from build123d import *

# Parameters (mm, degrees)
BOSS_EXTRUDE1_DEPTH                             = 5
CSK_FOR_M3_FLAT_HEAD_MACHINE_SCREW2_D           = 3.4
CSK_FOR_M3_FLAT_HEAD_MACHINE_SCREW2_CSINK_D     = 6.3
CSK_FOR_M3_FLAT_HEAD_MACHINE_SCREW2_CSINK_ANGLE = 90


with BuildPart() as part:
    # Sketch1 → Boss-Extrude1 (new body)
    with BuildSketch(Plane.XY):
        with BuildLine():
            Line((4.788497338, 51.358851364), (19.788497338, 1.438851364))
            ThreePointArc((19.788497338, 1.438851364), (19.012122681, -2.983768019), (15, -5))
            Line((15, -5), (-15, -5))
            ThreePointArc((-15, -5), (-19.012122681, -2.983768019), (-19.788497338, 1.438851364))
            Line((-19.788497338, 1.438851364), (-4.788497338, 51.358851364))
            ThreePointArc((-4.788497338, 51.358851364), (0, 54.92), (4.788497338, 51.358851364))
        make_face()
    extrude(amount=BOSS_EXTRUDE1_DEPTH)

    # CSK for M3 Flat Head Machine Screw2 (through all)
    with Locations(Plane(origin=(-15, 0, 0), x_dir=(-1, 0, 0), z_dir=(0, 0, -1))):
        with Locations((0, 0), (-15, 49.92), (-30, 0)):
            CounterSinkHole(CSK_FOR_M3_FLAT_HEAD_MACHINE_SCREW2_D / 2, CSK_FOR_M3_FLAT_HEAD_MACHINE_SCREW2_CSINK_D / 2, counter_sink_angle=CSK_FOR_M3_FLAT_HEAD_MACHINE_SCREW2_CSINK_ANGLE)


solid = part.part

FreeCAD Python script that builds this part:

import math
import FreeCAD as App
import Part
import Sketcher
from FreeCAD import Vector
Q = App.Units.Quantity

doc = App.newDocument("Part")
params = doc.addObject("Spreadsheet::Sheet", "Params")
for row, (alias, value) in enumerate([
    ("sketch1_radius", "5 mm"),
    ("sketch1_width", "30 mm"),
    ("pad1_length", "5 mm"),
    ("sketch2_diameter", "3.4 mm"),
    ("hole_diameter", "3.4 mm"),
    ("hole_csink_diameter", "6.3 mm"),
], start=1):
    params.set(f"A{row}", alias)
    params.set(f"B{row}", "=" + value)
    params.setAlias(f"B{row}", alias)

body = doc.addObject("PartDesign::Body", "Body")

sketch1 = body.newObject("Sketcher::SketchObject", "Sketch")
sketch1.AttachmentSupport = (doc.getObject("XY_Plane"), [""])
sketch1.MapMode = "FlatFace"
sketch1.addGeometry([
    Part.LineSegment(Vector(20, 1, 0), Vector(5, 51, 0)),
    Part.ArcOfCircle(Part.Circle(Vector(0, 50, 0), Vector(0, 0, 1), 5), math.radians(17), math.radians(163)),
    Part.LineSegment(Vector(-5, 51, 0), Vector(-20, 1, 0)),
    Part.ArcOfCircle(Part.Circle(Vector(-15, 0, 0), Vector(0, 0, 1), 5), math.radians(163), math.radians(270)),
    Part.LineSegment(Vector(-15, -5, 0), Vector(15, -5, 0)),
    Part.ArcOfCircle(Part.Circle(Vector(15, 0, 0), Vector(0, 0, 1), 5), math.radians(-90), math.radians(17)),
], False)
sketch1.addConstraint([
    Sketcher.Constraint("Tangent", 0, 2, 1, 1),
    Sketcher.Constraint("Tangent", 1, 2, 2, 1),
    Sketcher.Constraint("Tangent", 2, 2, 3, 1),
    Sketcher.Constraint("Tangent", 3, 2, 4, 1),
    Sketcher.Constraint("Tangent", 4, 2, 5, 1),
    Sketcher.Constraint("Tangent", 5, 2, 0, 1),
    Sketcher.Constraint("Horizontal", 4),
    Sketcher.Constraint("Equal", 1, 3),
    Sketcher.Constraint("Equal", 3, 5),
    Sketcher.Constraint("Symmetric", 3, 3, 5, 3, -1, 1),
    Sketcher.Constraint("PointOnObject", 1, 3, -2),
    Sketcher.Constraint("Radius", 1, Q("5 mm")),
    Sketcher.Constraint("DistanceX", 4, 1, 4, 2, Q("30 mm")),
    Sketcher.Constraint("DistanceY", -1, 1, 1, 3, Q("49.92 mm")),
])
sketch1.setExpression("Constraints[11]", "Params.sketch1_radius")
sketch1.setExpression("Constraints[12]", "Params.sketch1_width")
pad1 = body.newObject("PartDesign::Pad", "Pad")
pad1.Profile = sketch1
pad1.setExpression("Length", "Params.pad1_length")

sketch2 = body.newObject("Sketcher::SketchObject", "Sketch001")
sketch2.AttachmentSupport = (doc.getObject("XY_Plane"), [""])
sketch2.MapMode = "FlatFace"
sketch2.addGeometry([
    Part.Circle(Vector(-15, 0, 0), Vector(0, 0, 1), 1.7),
    Part.Circle(Vector(0, 49.9, 0), Vector(0, 0, 1), 1.7),
    Part.Circle(Vector(15, 0, 0), Vector(0, 0, 1), 1.7),
], False)
sketch2.addConstraint([
    Sketcher.Constraint("Equal", 0, 1),
    Sketcher.Constraint("Equal", 1, 2),
    Sketcher.Constraint("Symmetric", 0, 3, 2, 3, -1, 1),
    Sketcher.Constraint("PointOnObject", 0, 3, -1),
    Sketcher.Constraint("PointOnObject", 1, 3, -2),
    Sketcher.Constraint("Diameter", 0, Q("3.4 mm")),
    Sketcher.Constraint("DistanceX", 0, 3, -1, 1, Q("15 mm")),
    Sketcher.Constraint("DistanceY", -1, 1, 1, 3, Q("49.92 mm")),
])
sketch2.setExpression("Constraints[5]", "Params.sketch2_diameter")
doc.recompute()
hole = body.newObject("PartDesign::Hole", "Hole")
hole.Profile = sketch2
hole.ThreadType = "None"
hole.setExpression("Diameter", "Params.hole_diameter")
hole.DepthType = "ThroughAll"
hole.HoleCutType = "Countersink"
hole.setExpression("HoleCutDiameter", "Params.hole_csink_diameter")
hole.HoleCutCountersinkAngle = 90
hole.Reversed = True

doc.recompute()
